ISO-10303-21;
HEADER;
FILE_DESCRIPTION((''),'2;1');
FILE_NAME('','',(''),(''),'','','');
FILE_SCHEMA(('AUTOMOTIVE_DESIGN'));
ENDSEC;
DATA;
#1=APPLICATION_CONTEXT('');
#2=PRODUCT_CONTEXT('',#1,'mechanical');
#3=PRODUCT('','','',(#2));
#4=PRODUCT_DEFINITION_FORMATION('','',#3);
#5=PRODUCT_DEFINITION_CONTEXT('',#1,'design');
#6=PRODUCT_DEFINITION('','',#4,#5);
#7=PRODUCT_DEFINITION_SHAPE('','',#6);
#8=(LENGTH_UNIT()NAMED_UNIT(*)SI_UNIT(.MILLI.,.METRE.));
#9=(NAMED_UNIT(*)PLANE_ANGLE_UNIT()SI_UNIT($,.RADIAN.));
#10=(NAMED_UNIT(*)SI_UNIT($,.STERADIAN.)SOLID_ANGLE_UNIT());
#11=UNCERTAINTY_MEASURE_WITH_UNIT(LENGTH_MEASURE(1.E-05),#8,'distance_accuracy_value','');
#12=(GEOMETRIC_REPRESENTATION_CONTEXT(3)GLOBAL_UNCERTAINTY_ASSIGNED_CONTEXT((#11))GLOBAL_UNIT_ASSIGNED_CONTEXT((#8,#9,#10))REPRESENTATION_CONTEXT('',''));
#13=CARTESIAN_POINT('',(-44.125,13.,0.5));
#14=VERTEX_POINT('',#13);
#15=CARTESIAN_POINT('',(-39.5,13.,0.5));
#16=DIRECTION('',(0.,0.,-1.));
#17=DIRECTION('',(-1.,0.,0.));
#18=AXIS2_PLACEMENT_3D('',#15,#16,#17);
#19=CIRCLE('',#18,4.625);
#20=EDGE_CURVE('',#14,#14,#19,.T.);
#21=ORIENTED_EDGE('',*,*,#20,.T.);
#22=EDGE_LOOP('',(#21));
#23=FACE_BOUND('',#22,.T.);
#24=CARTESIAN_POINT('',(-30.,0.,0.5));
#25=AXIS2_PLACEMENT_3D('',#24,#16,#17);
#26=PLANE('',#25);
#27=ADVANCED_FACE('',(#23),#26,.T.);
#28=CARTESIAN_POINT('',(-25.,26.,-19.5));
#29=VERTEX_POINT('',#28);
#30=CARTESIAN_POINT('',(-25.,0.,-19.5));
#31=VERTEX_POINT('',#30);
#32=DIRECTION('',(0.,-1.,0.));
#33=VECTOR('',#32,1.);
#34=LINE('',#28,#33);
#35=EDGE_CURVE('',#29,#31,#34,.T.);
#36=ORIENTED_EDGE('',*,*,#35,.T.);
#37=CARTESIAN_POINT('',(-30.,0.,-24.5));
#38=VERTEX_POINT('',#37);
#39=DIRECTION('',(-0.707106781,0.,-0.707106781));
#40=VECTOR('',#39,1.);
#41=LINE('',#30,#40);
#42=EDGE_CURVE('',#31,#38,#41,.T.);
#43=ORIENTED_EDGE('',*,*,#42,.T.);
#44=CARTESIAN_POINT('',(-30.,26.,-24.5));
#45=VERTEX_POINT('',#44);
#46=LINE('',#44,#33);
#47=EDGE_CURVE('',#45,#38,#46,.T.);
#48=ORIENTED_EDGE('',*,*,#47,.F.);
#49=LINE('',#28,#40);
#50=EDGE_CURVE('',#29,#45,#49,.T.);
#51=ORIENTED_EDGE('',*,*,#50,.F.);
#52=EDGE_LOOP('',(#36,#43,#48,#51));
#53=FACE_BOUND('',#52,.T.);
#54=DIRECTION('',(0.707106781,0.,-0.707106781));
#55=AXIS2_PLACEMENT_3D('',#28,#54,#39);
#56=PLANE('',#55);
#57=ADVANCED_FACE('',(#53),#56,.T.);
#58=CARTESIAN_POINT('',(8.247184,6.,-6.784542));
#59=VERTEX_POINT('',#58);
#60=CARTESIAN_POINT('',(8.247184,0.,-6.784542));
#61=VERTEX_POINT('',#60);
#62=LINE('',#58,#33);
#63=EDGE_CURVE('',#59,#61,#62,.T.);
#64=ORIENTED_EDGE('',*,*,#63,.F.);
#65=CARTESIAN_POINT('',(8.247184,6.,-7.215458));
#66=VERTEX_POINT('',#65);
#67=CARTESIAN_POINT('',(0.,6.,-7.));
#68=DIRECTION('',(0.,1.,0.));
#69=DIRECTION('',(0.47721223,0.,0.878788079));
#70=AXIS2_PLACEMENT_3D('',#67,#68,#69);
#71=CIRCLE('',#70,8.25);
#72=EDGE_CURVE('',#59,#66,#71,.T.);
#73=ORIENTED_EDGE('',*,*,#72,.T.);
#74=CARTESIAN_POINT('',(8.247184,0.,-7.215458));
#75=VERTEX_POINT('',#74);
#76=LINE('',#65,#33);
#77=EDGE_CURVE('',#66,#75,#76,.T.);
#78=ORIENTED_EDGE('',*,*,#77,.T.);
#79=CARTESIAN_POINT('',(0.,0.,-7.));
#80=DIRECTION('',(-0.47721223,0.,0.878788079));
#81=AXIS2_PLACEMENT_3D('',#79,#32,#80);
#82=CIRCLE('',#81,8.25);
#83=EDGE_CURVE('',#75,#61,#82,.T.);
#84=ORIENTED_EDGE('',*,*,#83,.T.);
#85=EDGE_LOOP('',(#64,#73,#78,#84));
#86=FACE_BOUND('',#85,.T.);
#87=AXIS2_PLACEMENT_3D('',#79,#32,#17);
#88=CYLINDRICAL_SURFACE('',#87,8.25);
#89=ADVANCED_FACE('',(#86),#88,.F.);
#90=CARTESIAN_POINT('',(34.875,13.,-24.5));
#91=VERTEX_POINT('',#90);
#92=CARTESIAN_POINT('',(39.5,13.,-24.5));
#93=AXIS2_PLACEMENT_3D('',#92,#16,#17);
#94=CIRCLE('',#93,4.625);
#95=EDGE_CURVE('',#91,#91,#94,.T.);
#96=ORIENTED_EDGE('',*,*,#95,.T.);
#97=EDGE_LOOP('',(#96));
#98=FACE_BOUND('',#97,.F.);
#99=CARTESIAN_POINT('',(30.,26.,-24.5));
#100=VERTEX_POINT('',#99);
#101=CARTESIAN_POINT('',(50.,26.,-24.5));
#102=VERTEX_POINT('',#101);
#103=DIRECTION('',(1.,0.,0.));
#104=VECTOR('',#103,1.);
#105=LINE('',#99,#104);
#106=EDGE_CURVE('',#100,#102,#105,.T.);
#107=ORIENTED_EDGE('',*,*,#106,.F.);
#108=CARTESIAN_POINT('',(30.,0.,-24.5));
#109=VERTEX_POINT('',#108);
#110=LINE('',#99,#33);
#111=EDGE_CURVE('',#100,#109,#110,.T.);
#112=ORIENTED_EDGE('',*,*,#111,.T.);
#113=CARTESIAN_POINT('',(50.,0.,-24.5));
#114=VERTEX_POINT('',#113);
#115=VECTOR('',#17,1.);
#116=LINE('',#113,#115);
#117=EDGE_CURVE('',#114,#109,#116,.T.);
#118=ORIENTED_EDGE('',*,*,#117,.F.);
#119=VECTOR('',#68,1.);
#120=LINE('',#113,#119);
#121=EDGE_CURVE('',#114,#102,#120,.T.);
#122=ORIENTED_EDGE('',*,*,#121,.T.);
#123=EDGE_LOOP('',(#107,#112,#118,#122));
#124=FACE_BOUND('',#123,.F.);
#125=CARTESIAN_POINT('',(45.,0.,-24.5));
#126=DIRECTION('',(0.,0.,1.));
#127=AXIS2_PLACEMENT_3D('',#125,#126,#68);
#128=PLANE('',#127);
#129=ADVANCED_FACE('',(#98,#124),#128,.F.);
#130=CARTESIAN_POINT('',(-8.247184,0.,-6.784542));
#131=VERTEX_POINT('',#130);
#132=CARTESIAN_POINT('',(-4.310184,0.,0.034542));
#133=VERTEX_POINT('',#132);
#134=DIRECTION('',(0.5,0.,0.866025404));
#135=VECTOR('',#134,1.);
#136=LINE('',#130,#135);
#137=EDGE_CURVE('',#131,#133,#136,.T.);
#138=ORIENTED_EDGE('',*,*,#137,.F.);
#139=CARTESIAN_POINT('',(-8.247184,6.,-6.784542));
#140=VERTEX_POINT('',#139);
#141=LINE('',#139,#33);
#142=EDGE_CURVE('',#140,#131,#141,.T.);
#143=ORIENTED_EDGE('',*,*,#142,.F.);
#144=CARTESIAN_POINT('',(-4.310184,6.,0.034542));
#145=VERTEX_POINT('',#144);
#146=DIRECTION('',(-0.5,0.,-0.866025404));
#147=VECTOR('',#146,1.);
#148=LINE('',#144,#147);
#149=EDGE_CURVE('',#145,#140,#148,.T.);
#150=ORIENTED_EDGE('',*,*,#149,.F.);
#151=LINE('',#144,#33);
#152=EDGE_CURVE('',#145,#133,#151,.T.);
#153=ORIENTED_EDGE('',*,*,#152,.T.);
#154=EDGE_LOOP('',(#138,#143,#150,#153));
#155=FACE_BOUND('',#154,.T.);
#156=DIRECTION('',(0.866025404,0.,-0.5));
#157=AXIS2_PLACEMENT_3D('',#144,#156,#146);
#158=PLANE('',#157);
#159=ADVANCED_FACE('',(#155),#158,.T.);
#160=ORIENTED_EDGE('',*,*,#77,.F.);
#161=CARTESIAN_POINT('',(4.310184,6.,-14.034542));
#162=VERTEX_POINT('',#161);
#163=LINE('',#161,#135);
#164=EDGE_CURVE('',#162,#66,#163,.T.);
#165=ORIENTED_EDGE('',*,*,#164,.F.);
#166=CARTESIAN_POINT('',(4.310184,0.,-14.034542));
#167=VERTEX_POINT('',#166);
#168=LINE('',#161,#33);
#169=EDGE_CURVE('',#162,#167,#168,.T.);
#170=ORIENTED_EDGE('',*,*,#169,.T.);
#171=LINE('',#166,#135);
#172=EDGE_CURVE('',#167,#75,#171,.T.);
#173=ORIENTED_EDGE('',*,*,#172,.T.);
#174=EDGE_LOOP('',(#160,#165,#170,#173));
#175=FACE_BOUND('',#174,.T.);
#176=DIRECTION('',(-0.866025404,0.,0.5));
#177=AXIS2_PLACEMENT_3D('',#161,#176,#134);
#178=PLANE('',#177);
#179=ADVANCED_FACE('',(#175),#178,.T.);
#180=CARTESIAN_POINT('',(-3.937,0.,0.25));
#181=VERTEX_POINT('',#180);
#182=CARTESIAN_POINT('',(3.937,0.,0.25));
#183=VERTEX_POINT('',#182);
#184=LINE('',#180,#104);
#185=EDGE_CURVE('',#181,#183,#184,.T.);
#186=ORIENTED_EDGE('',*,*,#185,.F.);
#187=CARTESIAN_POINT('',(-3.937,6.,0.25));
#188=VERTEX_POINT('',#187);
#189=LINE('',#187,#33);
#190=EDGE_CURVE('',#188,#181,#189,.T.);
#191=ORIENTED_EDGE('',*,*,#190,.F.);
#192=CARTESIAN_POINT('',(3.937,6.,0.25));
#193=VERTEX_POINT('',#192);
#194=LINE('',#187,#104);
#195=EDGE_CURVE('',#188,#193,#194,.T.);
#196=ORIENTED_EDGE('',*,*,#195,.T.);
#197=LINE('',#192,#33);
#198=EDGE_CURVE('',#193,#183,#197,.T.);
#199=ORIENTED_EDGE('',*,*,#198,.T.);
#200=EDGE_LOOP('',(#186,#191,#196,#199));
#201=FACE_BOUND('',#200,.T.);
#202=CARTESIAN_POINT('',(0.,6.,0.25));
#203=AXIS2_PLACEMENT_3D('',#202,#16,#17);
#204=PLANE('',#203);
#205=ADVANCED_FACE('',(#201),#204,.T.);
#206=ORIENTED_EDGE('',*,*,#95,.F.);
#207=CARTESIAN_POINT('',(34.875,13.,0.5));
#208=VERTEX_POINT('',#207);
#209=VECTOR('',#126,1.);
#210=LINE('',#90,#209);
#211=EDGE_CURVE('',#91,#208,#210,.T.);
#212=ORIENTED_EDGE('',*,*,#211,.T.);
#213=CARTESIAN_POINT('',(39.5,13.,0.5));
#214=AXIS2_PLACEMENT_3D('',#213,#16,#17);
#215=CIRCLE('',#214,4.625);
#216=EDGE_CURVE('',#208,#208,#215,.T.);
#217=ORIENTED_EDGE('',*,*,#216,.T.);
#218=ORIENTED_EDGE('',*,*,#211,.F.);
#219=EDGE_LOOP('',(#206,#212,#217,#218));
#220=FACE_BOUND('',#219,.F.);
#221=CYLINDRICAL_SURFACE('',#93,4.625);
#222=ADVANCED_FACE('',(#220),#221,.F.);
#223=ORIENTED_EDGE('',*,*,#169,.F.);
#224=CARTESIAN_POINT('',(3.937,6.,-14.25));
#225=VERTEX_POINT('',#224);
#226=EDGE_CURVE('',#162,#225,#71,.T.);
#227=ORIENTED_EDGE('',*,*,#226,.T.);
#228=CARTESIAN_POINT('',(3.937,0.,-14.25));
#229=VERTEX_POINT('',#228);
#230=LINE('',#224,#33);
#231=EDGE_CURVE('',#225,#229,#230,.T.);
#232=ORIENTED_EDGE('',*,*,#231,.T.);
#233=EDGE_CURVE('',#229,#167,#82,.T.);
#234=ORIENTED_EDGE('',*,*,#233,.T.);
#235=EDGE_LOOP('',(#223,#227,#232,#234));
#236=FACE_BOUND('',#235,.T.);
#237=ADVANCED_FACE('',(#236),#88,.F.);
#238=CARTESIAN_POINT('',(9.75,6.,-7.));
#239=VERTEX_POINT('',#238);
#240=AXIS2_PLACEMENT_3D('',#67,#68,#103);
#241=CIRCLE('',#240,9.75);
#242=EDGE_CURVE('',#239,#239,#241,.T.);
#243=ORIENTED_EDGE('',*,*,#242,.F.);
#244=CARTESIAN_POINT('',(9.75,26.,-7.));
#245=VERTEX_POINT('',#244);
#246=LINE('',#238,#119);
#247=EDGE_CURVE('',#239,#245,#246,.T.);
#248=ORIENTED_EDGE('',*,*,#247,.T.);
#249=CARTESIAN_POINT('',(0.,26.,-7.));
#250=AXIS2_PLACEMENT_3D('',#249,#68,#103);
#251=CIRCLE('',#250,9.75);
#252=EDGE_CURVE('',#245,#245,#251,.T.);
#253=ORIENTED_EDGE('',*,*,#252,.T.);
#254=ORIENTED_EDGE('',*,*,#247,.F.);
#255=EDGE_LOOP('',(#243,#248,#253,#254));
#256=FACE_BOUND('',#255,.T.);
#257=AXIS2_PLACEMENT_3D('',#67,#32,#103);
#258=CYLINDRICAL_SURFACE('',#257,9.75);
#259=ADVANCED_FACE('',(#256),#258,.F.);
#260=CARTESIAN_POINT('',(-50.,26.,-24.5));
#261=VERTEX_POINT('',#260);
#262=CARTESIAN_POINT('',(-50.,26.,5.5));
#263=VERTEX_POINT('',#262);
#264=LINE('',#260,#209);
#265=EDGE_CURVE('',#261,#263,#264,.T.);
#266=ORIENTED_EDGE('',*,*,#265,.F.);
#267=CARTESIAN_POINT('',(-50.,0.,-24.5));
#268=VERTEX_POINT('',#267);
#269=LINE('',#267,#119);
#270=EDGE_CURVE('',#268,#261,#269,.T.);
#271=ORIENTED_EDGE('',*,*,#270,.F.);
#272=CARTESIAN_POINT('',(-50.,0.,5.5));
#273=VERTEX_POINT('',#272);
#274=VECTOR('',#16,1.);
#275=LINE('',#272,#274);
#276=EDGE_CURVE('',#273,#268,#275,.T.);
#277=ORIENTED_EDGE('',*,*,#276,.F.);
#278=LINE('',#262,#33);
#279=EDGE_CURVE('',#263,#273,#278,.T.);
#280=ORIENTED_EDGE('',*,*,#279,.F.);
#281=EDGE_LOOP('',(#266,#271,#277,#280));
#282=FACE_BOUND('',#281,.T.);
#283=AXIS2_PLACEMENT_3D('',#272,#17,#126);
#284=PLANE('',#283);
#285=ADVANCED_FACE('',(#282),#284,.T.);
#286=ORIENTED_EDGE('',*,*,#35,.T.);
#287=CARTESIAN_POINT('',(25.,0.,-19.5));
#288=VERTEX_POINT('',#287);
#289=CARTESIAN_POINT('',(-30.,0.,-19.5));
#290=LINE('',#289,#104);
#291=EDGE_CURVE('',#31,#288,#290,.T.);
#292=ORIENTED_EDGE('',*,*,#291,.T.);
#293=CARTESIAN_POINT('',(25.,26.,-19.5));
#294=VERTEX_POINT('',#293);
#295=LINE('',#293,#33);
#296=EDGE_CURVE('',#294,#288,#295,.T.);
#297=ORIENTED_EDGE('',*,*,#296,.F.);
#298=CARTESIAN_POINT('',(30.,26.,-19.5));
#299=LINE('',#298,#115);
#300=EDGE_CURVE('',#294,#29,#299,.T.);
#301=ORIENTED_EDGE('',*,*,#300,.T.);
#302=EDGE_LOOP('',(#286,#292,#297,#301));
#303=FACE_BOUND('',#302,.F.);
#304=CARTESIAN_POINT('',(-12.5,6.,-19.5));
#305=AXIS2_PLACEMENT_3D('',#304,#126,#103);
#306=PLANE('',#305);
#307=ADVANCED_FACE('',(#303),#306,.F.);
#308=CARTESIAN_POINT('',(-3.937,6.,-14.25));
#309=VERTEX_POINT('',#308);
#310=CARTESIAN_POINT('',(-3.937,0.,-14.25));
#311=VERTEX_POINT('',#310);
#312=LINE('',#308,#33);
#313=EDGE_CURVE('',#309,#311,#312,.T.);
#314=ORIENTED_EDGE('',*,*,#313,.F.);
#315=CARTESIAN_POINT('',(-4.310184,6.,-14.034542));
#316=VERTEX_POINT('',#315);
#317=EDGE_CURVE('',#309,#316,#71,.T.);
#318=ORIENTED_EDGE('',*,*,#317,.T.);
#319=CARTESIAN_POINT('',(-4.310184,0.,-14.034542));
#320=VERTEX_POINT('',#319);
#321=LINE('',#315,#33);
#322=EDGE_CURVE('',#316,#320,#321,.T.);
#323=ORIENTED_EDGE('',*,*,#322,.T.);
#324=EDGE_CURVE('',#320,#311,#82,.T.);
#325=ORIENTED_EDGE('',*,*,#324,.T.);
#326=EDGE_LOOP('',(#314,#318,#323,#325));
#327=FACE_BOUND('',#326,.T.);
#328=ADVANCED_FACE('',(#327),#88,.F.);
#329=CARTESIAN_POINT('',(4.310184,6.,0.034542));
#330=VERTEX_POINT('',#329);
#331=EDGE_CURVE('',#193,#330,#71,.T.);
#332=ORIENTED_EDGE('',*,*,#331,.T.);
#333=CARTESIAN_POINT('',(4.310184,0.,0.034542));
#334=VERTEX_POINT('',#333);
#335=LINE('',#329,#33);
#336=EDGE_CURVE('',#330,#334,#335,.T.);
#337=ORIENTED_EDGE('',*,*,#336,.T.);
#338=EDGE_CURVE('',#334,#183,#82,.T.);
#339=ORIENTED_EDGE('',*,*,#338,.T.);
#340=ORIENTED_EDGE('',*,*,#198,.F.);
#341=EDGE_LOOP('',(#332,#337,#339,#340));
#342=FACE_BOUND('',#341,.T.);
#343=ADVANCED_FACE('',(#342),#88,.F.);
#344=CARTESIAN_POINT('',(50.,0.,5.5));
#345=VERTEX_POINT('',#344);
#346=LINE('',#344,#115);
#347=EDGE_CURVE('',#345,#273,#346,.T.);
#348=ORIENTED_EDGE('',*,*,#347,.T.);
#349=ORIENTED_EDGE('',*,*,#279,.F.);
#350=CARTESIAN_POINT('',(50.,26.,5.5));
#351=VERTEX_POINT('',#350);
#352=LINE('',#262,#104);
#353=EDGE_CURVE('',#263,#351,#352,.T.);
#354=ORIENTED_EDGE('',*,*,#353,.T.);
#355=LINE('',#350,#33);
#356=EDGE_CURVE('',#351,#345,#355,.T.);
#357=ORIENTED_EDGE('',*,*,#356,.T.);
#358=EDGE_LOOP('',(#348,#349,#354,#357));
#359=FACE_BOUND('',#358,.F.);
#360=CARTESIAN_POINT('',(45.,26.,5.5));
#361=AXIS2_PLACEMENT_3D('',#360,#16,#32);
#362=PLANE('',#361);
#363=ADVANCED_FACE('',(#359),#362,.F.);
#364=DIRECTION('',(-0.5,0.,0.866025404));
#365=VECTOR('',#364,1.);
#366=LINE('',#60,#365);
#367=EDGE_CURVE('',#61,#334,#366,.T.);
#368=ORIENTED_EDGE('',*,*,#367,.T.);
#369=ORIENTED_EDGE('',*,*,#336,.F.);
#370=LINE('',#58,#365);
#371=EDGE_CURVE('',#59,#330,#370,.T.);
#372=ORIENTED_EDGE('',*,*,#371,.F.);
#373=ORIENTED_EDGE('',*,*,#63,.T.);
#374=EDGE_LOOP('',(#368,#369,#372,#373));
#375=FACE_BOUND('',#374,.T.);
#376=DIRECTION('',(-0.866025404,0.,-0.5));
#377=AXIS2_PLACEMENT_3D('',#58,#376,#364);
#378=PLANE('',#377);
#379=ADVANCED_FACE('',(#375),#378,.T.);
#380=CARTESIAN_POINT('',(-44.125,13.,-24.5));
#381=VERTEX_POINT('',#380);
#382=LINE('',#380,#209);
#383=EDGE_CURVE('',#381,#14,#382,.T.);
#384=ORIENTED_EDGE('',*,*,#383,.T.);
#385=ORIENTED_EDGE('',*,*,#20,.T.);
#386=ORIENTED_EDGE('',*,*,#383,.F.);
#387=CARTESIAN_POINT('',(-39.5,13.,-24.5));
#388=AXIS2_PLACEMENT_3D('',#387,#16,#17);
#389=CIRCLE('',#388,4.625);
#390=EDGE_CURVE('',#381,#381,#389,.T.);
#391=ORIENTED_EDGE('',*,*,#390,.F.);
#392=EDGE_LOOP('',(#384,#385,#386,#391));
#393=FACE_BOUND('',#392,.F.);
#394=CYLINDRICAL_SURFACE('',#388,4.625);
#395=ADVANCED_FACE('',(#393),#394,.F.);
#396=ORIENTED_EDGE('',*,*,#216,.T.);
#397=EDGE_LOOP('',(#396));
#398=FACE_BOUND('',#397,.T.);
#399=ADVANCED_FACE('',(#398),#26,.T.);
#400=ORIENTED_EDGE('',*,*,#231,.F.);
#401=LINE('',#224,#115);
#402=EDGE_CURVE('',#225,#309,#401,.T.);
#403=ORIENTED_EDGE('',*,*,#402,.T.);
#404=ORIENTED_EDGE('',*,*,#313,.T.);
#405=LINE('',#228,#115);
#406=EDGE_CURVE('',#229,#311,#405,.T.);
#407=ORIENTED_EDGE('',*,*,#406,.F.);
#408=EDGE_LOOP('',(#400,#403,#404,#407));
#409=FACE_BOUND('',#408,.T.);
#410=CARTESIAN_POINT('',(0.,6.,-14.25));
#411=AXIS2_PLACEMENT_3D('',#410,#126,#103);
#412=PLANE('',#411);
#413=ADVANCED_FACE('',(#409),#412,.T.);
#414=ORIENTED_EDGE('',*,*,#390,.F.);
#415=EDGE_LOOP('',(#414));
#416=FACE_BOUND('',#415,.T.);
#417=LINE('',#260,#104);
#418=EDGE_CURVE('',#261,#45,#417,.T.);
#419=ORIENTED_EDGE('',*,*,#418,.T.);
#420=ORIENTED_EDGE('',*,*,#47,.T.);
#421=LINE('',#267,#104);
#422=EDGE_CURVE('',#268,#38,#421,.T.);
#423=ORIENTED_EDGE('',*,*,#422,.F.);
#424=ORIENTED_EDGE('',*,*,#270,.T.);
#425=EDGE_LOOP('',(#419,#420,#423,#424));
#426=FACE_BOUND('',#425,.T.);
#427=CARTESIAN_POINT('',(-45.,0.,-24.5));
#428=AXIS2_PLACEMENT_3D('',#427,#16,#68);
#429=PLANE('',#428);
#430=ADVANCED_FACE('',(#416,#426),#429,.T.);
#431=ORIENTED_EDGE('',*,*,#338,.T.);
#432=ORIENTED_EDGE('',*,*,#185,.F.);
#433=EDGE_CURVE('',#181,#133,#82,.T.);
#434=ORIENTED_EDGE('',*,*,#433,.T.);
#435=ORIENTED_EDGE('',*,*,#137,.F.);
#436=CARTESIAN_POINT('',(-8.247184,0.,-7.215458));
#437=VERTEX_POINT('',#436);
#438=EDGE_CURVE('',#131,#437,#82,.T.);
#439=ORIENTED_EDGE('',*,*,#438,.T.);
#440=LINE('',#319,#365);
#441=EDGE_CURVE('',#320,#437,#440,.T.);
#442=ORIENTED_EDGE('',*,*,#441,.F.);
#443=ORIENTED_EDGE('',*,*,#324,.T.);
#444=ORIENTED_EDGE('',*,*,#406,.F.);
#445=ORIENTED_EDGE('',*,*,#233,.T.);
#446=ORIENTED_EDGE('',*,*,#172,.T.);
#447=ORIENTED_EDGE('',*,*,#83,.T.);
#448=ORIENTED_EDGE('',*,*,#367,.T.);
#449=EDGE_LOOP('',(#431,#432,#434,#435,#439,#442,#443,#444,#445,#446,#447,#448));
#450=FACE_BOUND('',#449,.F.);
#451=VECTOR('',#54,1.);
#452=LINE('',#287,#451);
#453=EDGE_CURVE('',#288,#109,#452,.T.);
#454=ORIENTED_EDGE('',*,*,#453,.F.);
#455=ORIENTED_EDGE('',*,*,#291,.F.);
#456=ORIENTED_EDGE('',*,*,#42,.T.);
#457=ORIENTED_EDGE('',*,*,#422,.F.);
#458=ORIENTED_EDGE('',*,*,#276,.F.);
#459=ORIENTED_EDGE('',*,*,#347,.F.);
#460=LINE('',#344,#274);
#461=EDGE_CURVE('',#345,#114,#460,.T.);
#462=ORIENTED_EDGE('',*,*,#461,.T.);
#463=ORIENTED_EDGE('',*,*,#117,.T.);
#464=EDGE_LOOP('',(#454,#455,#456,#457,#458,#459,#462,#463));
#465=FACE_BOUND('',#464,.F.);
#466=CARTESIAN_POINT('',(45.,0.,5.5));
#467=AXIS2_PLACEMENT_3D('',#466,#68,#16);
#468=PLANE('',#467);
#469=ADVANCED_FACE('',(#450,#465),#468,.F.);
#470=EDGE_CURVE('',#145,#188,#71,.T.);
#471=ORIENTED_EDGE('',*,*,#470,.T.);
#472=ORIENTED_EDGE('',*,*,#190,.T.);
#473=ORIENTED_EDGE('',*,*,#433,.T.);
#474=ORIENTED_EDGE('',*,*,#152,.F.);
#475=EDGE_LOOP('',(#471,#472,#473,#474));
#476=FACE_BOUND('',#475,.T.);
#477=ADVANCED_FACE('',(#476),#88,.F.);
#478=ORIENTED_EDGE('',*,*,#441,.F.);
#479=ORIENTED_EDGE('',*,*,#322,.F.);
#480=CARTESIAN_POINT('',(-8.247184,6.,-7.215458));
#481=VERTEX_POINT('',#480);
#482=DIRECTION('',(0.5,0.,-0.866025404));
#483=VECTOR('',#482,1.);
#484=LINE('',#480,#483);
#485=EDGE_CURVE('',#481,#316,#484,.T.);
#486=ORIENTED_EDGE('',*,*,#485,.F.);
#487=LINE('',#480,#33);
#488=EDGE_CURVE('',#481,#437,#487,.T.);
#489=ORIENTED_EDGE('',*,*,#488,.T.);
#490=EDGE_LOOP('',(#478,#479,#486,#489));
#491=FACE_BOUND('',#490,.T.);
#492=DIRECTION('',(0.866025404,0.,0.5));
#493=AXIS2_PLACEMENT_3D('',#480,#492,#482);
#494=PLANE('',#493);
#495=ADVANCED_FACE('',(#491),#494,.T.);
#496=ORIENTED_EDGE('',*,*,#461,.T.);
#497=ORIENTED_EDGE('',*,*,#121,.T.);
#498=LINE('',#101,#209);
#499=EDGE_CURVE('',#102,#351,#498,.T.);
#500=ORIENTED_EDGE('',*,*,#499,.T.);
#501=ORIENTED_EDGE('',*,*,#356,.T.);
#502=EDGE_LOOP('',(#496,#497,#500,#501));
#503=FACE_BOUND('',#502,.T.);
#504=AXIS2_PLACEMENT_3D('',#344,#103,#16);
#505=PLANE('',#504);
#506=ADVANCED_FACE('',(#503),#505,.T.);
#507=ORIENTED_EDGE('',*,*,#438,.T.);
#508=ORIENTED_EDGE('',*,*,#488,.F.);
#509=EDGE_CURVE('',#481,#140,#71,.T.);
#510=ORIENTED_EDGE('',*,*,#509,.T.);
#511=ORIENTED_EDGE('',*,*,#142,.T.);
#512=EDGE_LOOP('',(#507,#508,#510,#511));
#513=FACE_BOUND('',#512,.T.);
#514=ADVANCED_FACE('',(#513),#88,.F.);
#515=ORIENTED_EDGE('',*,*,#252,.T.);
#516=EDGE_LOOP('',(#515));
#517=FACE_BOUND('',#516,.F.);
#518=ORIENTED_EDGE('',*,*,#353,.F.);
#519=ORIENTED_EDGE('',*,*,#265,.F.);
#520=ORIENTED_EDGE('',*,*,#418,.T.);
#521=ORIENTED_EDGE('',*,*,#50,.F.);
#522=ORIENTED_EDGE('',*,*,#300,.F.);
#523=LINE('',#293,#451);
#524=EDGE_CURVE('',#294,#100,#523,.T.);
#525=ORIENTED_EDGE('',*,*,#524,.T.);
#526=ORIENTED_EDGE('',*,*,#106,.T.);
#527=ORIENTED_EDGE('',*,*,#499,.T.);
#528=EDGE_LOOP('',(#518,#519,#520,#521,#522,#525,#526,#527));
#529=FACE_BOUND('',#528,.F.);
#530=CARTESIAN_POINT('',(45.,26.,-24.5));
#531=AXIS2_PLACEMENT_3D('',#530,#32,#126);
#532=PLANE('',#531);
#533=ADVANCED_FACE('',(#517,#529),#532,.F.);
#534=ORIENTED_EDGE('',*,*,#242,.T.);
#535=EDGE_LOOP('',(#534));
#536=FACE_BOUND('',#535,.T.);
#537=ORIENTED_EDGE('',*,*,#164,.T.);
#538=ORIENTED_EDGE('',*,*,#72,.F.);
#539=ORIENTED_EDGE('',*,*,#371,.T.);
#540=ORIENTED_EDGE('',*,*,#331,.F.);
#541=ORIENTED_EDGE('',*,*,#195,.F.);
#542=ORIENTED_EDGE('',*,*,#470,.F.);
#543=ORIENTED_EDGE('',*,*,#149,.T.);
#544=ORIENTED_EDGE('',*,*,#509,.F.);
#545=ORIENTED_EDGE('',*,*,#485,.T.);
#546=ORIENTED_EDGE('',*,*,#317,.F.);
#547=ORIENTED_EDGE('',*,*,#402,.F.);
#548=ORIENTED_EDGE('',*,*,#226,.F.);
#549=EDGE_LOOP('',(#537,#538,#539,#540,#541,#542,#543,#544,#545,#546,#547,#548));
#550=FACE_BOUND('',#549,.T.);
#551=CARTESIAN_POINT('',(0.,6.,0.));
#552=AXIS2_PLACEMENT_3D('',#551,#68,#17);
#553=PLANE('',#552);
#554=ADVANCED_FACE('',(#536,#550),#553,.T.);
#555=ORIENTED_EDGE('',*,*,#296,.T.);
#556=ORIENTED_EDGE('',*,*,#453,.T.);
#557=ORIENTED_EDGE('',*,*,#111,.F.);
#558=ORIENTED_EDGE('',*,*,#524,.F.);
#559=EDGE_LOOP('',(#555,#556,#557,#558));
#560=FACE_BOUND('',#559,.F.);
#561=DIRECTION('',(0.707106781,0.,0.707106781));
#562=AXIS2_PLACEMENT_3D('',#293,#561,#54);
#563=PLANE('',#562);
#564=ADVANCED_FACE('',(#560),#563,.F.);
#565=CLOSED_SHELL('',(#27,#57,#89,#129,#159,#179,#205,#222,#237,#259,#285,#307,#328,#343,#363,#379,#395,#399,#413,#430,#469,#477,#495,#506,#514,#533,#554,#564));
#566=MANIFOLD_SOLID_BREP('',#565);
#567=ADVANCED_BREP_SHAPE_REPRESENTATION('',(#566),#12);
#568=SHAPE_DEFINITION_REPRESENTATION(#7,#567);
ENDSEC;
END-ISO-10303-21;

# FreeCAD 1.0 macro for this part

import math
import FreeCAD as App
import Part
import Sketcher
from FreeCAD import Vector
Q = App.Units.Quantity

doc = App.newDocument("Part")
params = doc.addObject("Spreadsheet::Sheet", "Params")
for row, (alias, value) in enumerate([
    ("sketch1_diameter", "21 mm"),
    ("sketch1_diameter2", "16.5 mm"),
    ("pad1_length", "6 mm"),
    ("sketch2_radius", "10.5 mm"),
    ("pad2_length", "6 mm"),
    ("sketch3_radius", "8.25 mm"),
    ("pad3_length", "6 mm"),
    ("sketch4_diameter", "19.5 mm"),
    ("sketch4_width", "25 mm"),
    ("pad4_length", "20 mm"),
    ("sketch5_width", "25 mm"),
    ("sketch5_width2", "21 mm"),
    ("pad5_length", "6 mm"),
    ("sketch6_width", "17.5 mm"),
    ("sketch6_height", "26 mm"),
    ("pad6_length", "25 mm"),
    ("sketch7_width", "15 mm"),
    ("sketch7_height", "26 mm"),
    ("pad7_length", "61.25 mm"),
    ("sketch8_diameter", "8.25 mm"),
    ("sketch9_width", "5 mm"),
    ("pad8_length", "26 mm"),
    ("sketch10_width", "90 mm"),
    ("sketch10_height", "31.25 mm"),
    ("sketch11_width", "26 mm"),
    ("sketch11_height", "30 mm"),
    ("pad9_length", "5 mm"),
    ("sketch12_width", "26 mm"),
    ("sketch12_height", "30 mm"),
    ("pad10_length", "5 mm"),
    ("sketch13_diameter", "9.25 mm"),
    ("pocket3_length", "25 mm"),
], start=1):
    params.set(f"A{row}", alias)
    params.set(f"B{row}", "=" + value)
    params.setAlias(f"B{row}", alias)

body = doc.addObject("PartDesign::Body", "Body")

# Sketch on XZ plane
sketch1 = doc.addObject("Sketcher::SketchObject", "Sketch")
body.addObject(sketch1)
sketch1.AttachmentSupport = (doc.XZ_Plane, [""])
sketch1.MapMode = "FlatFace"
sketch1.addGeometry([
    Part.Circle(Vector(0, -7, 0), Vector(0, 0, 1), 10),
    Part.Circle(Vector(0, -7, 0), Vector(0, 0, 1), 8),
], False)
sketch1.addConstraint([
    Sketcher.Constraint("Coincident", 1, 3, 0, 3),
    Sketcher.Constraint("PointOnObject", 0, 3, -2),
    Sketcher.Constraint("Diameter", 0, Q("21 mm")),
    Sketcher.Constraint("Diameter", 1, Q("16.5 mm")),
    Sketcher.Constraint("DistanceY", 0, 3, -1, 1, Q("7 mm")),
])
sketch1.setExpression("Constraints[2]", "Params.sketch1_diameter")
sketch1.setExpression("Constraints[3]", "Params.sketch1_diameter2")
pad1 = doc.addObject("PartDesign::Pad", "Pad")
body.addObject(pad1)
pad1.Profile = sketch1
pad1.setExpression("Length", "Params.pad1_length")
pad1.Reversed = True

# Sketch on XZ plane
sketch2 = doc.addObject("Sketcher::SketchObject", "Sketch001")
body.addObject(sketch2)
sketch2.AttachmentSupport = (doc.XZ_Plane, [""])
sketch2.MapMode = "FlatFace"
sketch2.AttachmentOffset = App.Placement(Vector(0, 0, -6), App.Rotation())
sketch2.addGeometry([
    Part.LineSegment(Vector(0, 4, 0), Vector(10, 4, 0)),  # 0
    Part.LineSegment(Vector(10, 4, 0), Vector(10, -7, 0)),  # 1
    Part.ArcOfCircle(Part.Circle(Vector(0, -7, 0), Vector(0, 0, 1), 10), math.radians(0), math.radians(90)),  # 2
    Part.LineSegment(Vector(-10, 4, 0), Vector(0, 4, 0)),  # 3
    Part.ArcOfCircle(Part.Circle(Vector(0, -7, 0), Vector(0, 0, 1), 10), math.radians(90), math.radians(180)),  # 4
    Part.LineSegment(Vector(-10, -7, 0), Vector(-10, 4, 0)),  # 5
    Part.ArcOfCircle(Part.Circle(Vector(0, -7, 0), Vector(0, 0, 1), 10), math.radians(-90), math.radians(0)),  # 6
    Part.LineSegment(Vector(10, -7, 0), Vector(10, -18, 0)),  # 7
    Part.LineSegment(Vector(10, -18, 0), Vector(0, -18, 0)),  # 8
    Part.LineSegment(Vector(-10, -18, 0), Vector(-10, -7, 0)),  # 9
    Part.ArcOfCircle(Part.Circle(Vector(0, -7, 0), Vector(0, 0, 1), 10), math.radians(-180), math.radians(-90)),  # 10
    Part.LineSegment(Vector(0, -18, 0), Vector(-10, -18, 0)),  # 11
], False)
sketch2.addConstraint([
    Sketcher.Constraint("Coincident", 0, 2, 1, 1),
    Sketcher.Constraint("Tangent", 1, 2, 2, 1),
    Sketcher.Constraint("Tangent", 2, 2, 0, 1),
    Sketcher.Constraint("Tangent", 3, 2, 4, 1),
    Sketcher.Constraint("Tangent", 4, 2, 5, 1),
    Sketcher.Constraint("Coincident", 5, 2, 3, 1),
    Sketcher.Constraint("Tangent", 6, 2, 7, 1),
    Sketcher.Constraint("Coincident", 7, 2, 8, 1),
    Sketcher.Constraint("Tangent", 8, 2, 6, 1),
    Sketcher.Constraint("Tangent", 9, 2, 10, 1),
    Sketcher.Constraint("Tangent", 10, 2, 11, 1),
    Sketcher.Constraint("Coincident", 11, 2, 9, 1),
    Sketcher.Constraint("Horizontal", 0),
    Sketcher.Constraint("Vertical", 1),
    Sketcher.Constraint("Horizontal", 3),
    Sketcher.Constraint("Vertical", 5),
    Sketcher.Constraint("Vertical", 7),
    Sketcher.Constraint("Horizontal", 8),
    Sketcher.Constraint("Vertical", 9),
    Sketcher.Constraint("Horizontal", 11),
    Sketcher.Constraint("Coincident", 4, 3, 2, 3),
    Sketcher.Constraint("Coincident", 6, 3, 2, 3),
    Sketcher.Constraint("Coincident", 10, 3, 2, 3),
    Sketcher.Constraint("Equal", 2, 4),
    Sketcher.Constraint("Equal", 4, 6),
    Sketcher.Constraint("Equal", 6, 10),
    Sketcher.Constraint("PointOnObject", 2, 3, -2),
    Sketcher.Constraint("Radius", 2, Q("10.5 mm")),
    Sketcher.Constraint("DistanceY", 2, 3, -1, 1, Q("7 mm")),
])
sketch2.setExpression("Constraints[27]", "Params.sketch2_radius")
pad2 = doc.addObject("PartDesign::Pad", "Pad001")
body.addObject(pad2)
pad2.Profile = sketch2
pad2.setExpression("Length", "Params.pad2_length")

# Sketch on XZ plane
sketch3 = doc.addObject("Sketcher::SketchObject", "Sketch002")
body.addObject(sketch3)
sketch3.AttachmentSupport = (doc.XZ_Plane, [""])
sketch3.MapMode = "FlatFace"
sketch3.AttachmentOffset = App.Placement(Vector(0, 0, -6), App.Rotation())
sketch3.addGeometry([
    Part.LineSegment(Vector(4, 0, 0), Vector(-4, 0, 0)),
    Part.ArcOfCircle(Part.Circle(Vector(0, -7, 0), Vector(0, 0, 1), 8), math.radians(61), math.radians(119)),
], False)
sketch3.addConstraint([
    Sketcher.Constraint("Coincident", 0, 1, 1, 1),
    Sketcher.Constraint("Coincident", 1, 2, 0, 2),
    Sketcher.Constraint("Horizontal", 0),
    Sketcher.Constraint("PointOnObject", 1, 3, -2),
    Sketcher.Constraint("Radius", 1, Q("8.25 mm")),
    Sketcher.Constraint("DistanceY", 1, 3, 0, 1, Q("7.25 mm")),
    Sketcher.Constraint("DistanceY", 1, 3, -1, 1, Q("7 mm")),
])
sketch3.setExpression("Constraints[4]", "Params.sketch3_radius")
pad3 = doc.addObject("PartDesign::Pad", "Pad002")
body.addObject(pad3)
pad3.Profile = sketch3
pad3.setExpression("Length", "Params.pad3_length")
doc.recompute()

datumline = doc.addObject("PartDesign::Line", "DatumLine")
body.addObject(datumline)
datumline.Placement = App.Placement(Vector(0, 0, -7), App.Rotation(Vector(0, 0, 1), Vector(0, 1, 0)))
polarpattern = doc.addObject("PartDesign::PolarPattern", "PolarPattern")
body.addObject(polarpattern)
polarpattern.Originals = [pad3]
polarpattern.Axis = (datumline, [""])
polarpattern.Angle = 360
polarpattern.Occurrences = 6
body.Tip = polarpattern

# Sketch on XZ plane
sketch4 = doc.addObject("Sketcher::SketchObject", "Sketch003")
body.addObject(sketch4)
sketch4.AttachmentSupport = (doc.XZ_Plane, [""])
sketch4.MapMode = "FlatFace"
sketch4.AttachmentOffset = App.Placement(Vector(0, 0, -6), App.Rotation())
sketch4.addGeometry([
    Part.LineSegment(Vector(12, 6, 0), Vector(12, -20, 0)),  # 0
    Part.LineSegment(Vector(12, -20, 0), Vector(-12, -20, 0)),  # 1
    Part.LineSegment(Vector(-12, -20, 0), Vector(-12, 6, 0)),  # 2
    Part.LineSegment(Vector(-12, 6, 0), Vector(12, 6, 0)),  # 3
    Part.Circle(Vector(0, -7, 0), Vector(0, 0, 1), 10),  # 4
], False)
sketch4.addConstraint([
    Sketcher.Constraint("Coincident", 0, 2, 1, 1),
    Sketcher.Constraint("Coincident", 1, 2, 2, 1),
    Sketcher.Constraint("Coincident", 2, 2, 3, 1),
    Sketcher.Constraint("Coincident", 3, 2, 0, 1),
    Sketcher.Constraint("Vertical", 0),
    Sketcher.Constraint("Horizontal", 1),
    Sketcher.Constraint("Vertical", 2),
    Sketcher.Constraint("Horizontal", 3),
    Sketcher.Constraint("PointOnObject", 4, 3, -2),
    Sketcher.Constraint("Equal", 3, 0),
    Sketcher.Constraint("Diameter", 4, Q("19.5 mm")),
    Sketcher.Constraint("DistanceX", 1, 2, 1, 1, Q("25 mm")),
    Sketcher.Constraint("DistanceY", 0, 2, -1, 1, Q("19.5 mm")),
    Sketcher.Constraint("DistanceY", 4, 3, -1, 1, Q("7 mm")),
    Sketcher.Constraint("DistanceX", -1, 1, 0, 2, Q("12.5 mm")),
])
sketch4.setExpression("Constraints[10]", "Params.sketch4_diameter")
sketch4.setExpression("Constraints[11]", "Params.sketch4_width")
pad4 = doc.addObject("PartDesign::Pad", "Pad003")
body.addObject(pad4)
pad4.Profile = sketch4
pad4.setExpression("Length", "Params.pad4_length")
pad4.Reversed = True

# Sketch on XZ plane
sketch5 = doc.addObject("Sketcher::SketchObject", "Sketch004")
body.addObject(sketch5)
sketch5.AttachmentSupport = (doc.XZ_Plane, [""])
sketch5.MapMode = "FlatFace"
sketch5.AttachmentOffset = App.Placement(Vector(0, 0, -6), App.Rotation())
sketch5.addGeometry([
    Part.LineSegment(Vector(-12, 6, 0), Vector(-12, -20, 0)),  # 0
    Part.LineSegment(Vector(-12, -20, 0), Vector(12, -20, 0)),  # 1
    Part.LineSegment(Vector(12, -20, 0), Vector(12, 6, 0)),  # 2
    Part.LineSegment(Vector(12, 6, 0), Vector(-12, 6, 0)),  # 3
    Part.LineSegment(Vector(10, -18, 0), Vector(-10, -18, 0)),  # 4
    Part.LineSegment(Vector(-10, -18, 0), Vector(-10, 4, 0)),  # 5
    Part.LineSegment(Vector(-10, 4, 0), Vector(10, 4, 0)),  # 6
    Part.LineSegment(Vector(10, 4, 0), Vector(10, -18, 0)),  # 7
], False)
sketch5.addConstraint([
    Sketcher.Constraint("Coincident", 0, 2, 1, 1),
    Sketcher.Constraint("Coincident", 1, 2, 2, 1),
    Sketcher.Constraint("Coincident", 2, 2, 3, 1),
    Sketcher.Constraint("Coincident", 3, 2, 0, 1),
    Sketcher.Constraint("Coincident", 4, 2, 5, 1),
    Sketcher.Constraint("Coincident", 5, 2, 6, 1),
    Sketcher.Constraint("Coincident", 6, 2, 7, 1),
    Sketcher.Constraint("Coincident", 7, 2, 4, 1),
    Sketcher.Constraint("Vertical", 0),
    Sketcher.Constraint("Horizontal", 1),
    Sketcher.Constraint("Vertical", 2),
    Sketcher.Constraint("Horizontal", 3),
    Sketcher.Constraint("Horizontal", 4),
    Sketcher.Constraint("Vertical", 5),
    Sketcher.Constraint("Horizontal", 6),
    Sketcher.Constraint("Vertical", 7),
    Sketcher.Constraint("Equal", 3, 0),
    Sketcher.Constraint("Equal", 6, 5),
    Sketcher.Constraint("DistanceX", 1, 1, 1, 2, Q("25 mm")),
    Sketcher.Constraint("DistanceX", 4, 2, 4, 1, Q("21 mm")),
    Sketcher.Constraint("DistanceX", 0, 2, 4, 2, Q("2 mm")),
    Sketcher.Constraint("DistanceY", 0, 2, 4, 2, Q("2 mm")),
    Sketcher.Constraint("DistanceX", 0, 2, -1, 1, Q("12.5 mm")),
    Sketcher.Constraint("DistanceY", 0, 2, -1, 1, Q("19.5 mm")),
])
sketch5.setExpression("Constraints[18]", "Params.sketch5_width")
sketch5.setExpression("Constraints[19]", "Params.sketch5_width2")
pad5 = doc.addObject("PartDesign::Pad", "Pad004")
body.addObject(pad5)
pad5.Profile = sketch5
pad5.setExpression("Length", "Params.pad5_length")

# Sketch on XY plane
sketch6 = doc.addObject("Sketcher::SketchObject", "Sketch005")
body.addObject(sketch6)
sketch6.AttachmentSupport = (doc.XY_Plane, [""])
sketch6.MapMode = "FlatFace"
sketch6.AttachmentOffset = App.Placement(Vector(0, 0, 5.5), App.Rotation())
sketch6.addGeometry([
    Part.LineSegment(Vector(30, 26, 0), Vector(12, 26, 0)),  # 0
    Part.LineSegment(Vector(12, 26, 0), Vector(12, 0, 0)),  # 1
    Part.LineSegment(Vector(12, 0, 0), Vector(30, 0, 0)),  # 2
    Part.LineSegment(Vector(30, 0, 0), Vector(30, 26, 0)),  # 3
    Part.LineSegment(Vector(-12, 0, 0), Vector(-12, 26, 0)),  # 4
    Part.LineSegment(Vector(-12, 26, 0), Vector(-30, 26, 0)),  # 5
    Part.LineSegment(Vector(-30, 26, 0), Vector(-30, 0, 0)),  # 6
    Part.LineSegment(Vector(-30, 0, 0), Vector(-12, 0, 0)),  # 7
], False)
sketch6.addConstraint([
    Sketcher.Constraint("Coincident", 0, 2, 1, 1),
    Sketcher.Constraint("Coincident", 1, 2, 2, 1),
    Sketcher.Constraint("Coincident", 2, 2, 3, 1),
    Sketcher.Constraint("Coincident", 3, 2, 0, 1),
    Sketcher.Constraint("Coincident", 4, 2, 5, 1),
    Sketcher.Constraint("Coincident", 5, 2, 6, 1),
    Sketcher.Constraint("Coincident", 6, 2, 7, 1),
    Sketcher.Constraint("Coincident", 7, 2, 4, 1),
    Sketcher.Constraint("Horizontal", 0),
    Sketcher.Constraint("Vertical", 1),
    Sketcher.Constraint("Horizontal", 2),
    Sketcher.Constraint("Vertical", 3),
    Sketcher.Constraint("Vertical", 4),
    Sketcher.Constraint("Horizontal", 5),
    Sketcher.Constraint("Vertical", 6),
    Sketcher.Constraint("Horizontal", 7),
    Sketcher.Constraint("Symmetric", 2, 2, 6, 2, -1, 1),
    Sketcher.Constraint("Symmetric", 0, 2, 4, 2, -2),
    Sketcher.Constraint("PointOnObject", 1, 2, -1),
    Sketcher.Constraint("DistanceX", 0, 2, 0, 1, Q("17.5 mm")),
    Sketcher.Constraint("DistanceY", 1, 2, 1, 1, Q("26 mm")),
    Sketcher.Constraint("DistanceX", -1, 1, 2, 2, Q("30 mm")),
])
sketch6.setExpression("Constraints[19]", "Params.sketch6_width")
sketch6.setExpression("Constraints[20]", "Params.sketch6_height")
pad6 = doc.addObject("PartDesign::Pad", "Pad005")
body.addObject(pad6)
pad6.Profile = sketch6
pad6.setExpression("Length", "Params.pad6_length")
pad6.Reversed = True

# Sketch on XY plane
sketch7 = doc.addObject("Sketcher::SketchObject", "Sketch006")
body.addObject(sketch7)
sketch7.AttachmentSupport = (doc.XY_Plane, [""])
sketch7.MapMode = "FlatFace"
sketch7.AttachmentOffset = App.Placement(Vector(0, 0, 5.5), App.Rotation())
sketch7.addGeometry([
    Part.LineSegment(Vector(-30, 0, 0), Vector(-30, 26, 0)),  # 0
    Part.LineSegment(Vector(-30, 26, 0), Vector(-45, 26, 0)),  # 1
    Part.LineSegment(Vector(-45, 26, 0), Vector(-45, 0, 0)),  # 2
    Part.LineSegment(Vector(-45, 0, 0), Vector(-30, 0, 0)),  # 3
    Part.LineSegment(Vector(45, 26, 0), Vector(30, 26, 0)),  # 4
    Part.LineSegment(Vector(30, 26, 0), Vector(30, 0, 0)),  # 5
    Part.LineSegment(Vector(30, 0, 0), Vector(45, 0, 0)),  # 6
    Part.LineSegment(Vector(45, 0, 0), Vector(45, 26, 0)),  # 7
], False)
sketch7.addConstraint([
    Sketcher.Constraint("Coincident", 0, 2, 1, 1),
    Sketcher.Constraint("Coincident", 1, 2, 2, 1),
    Sketcher.Constraint("Coincident", 2, 2, 3, 1),
    Sketcher.Constraint("Coincident", 3, 2, 0, 1),
    Sketcher.Constraint("Coincident", 4, 2, 5, 1),
    Sketcher.Constraint("Coincident", 5, 2, 6, 1),
    Sketcher.Constraint("Coincident", 6, 2, 7, 1),
    Sketcher.Constraint("Coincident", 7, 2, 4, 1),
    Sketcher.Constraint("Vertical", 0),
    Sketcher.Constraint("Horizontal", 1),
    Sketcher.Constraint("Vertical", 2),
    Sketcher.Constraint("Horizontal", 3),
    Sketcher.Constraint("Horizontal", 4),
    Sketcher.Constraint("Vertical", 5),
    Sketcher.Constraint("Horizontal", 6),
    Sketcher.Constraint("Vertical", 7),
    Sketcher.Constraint("Symmetric", 3, 2, 5, 2, -1, 1),
    Sketcher.Constraint("Symmetric", 2, 2, 6, 2, -2),
    Sketcher.Constraint("Horizontal", 1, 2, 4, 2),
    Sketcher.Constraint("DistanceX", 1, 2, 1, 1, Q("15 mm")),
    Sketcher.Constraint("DistanceY", 0, 1, 0, 2, Q("26 mm")),
    Sketcher.Constraint("DistanceX", 0, 2, -1, 1, Q("30 mm")),
])
sketch7.setExpression("Constraints[19]", "Params.sketch7_width")
sketch7.setExpression("Constraints[20]", "Params.sketch7_height")
pad7 = doc.addObject("PartDesign::Pad", "Pad006")
body.addObject(pad7)
pad7.Profile = sketch7
pad7.setExpression("Length", "Params.pad7_length")
pad7.Reversed = True

# Sketch on YZ plane
sketch8 = doc.addObject("Sketcher::SketchObject", "Sketch007")
body.addObject(sketch8)
sketch8.AttachmentSupport = (doc.YZ_Plane, [""])
sketch8.MapMode = "FlatFace"
sketch8.AttachmentOffset = App.Placement(Vector(0, 0, -45), App.Rotation())
sketch8.addGeometry(Part.Circle(Vector(13, -42.6, 0), Vector(0, 0, 1), 4.1), False)
sketch8.addConstraint([
    Sketcher.Constraint("Diameter", 0, Q("8.25 mm")),
    Sketcher.Constraint("DistanceX", -1, 1, 0, 3, Q("13 mm")),
    Sketcher.Constraint("DistanceY", 0, 3, -1, 1, Q("42.625 mm")),
])
sketch8.setExpression("Constraints[0]", "Params.sketch8_diameter")
pocket1 = doc.addObject("PartDesign::Pocket", "Pocket")
body.addObject(pocket1)
pocket1.Profile = sketch8
pocket1.Type = "ThroughAll"
pocket1.Reversed = True

# Sketch on XZ plane
sketch9 = doc.addObject("Sketcher::SketchObject", "Sketch008")
body.addObject(sketch9)
sketch9.AttachmentSupport = (doc.XZ_Plane, [""])
sketch9.MapMode = "FlatFace"
sketch9.AttachmentOffset = App.Placement(Vector(0, 0, -26), App.Rotation())
sketch9.addGeometry([
    Part.LineSegment(Vector(25, -20, 0), Vector(30, -20, 0)),  # 0
    Part.LineSegment(Vector(30, -20, 0), Vector(30, -24, 0)),  # 1
    Part.LineSegment(Vector(30, -24, 0), Vector(25, -20, 0)),  # 2
    Part.LineSegment(Vector(-30, -20, 0), Vector(-25, -20, 0)),  # 3
    Part.LineSegment(Vector(-25, -20, 0), Vector(-30, -24, 0)),  # 4
    Part.LineSegment(Vector(-30, -24, 0), Vector(-30, -20, 0)),  # 5
], False)
sketch9.addConstraint([
    Sketcher.Constraint("Coincident", 0, 2, 1, 1),
    Sketcher.Constraint("Coincident", 1, 2, 2, 1),
    Sketcher.Constraint("Coincident", 2, 2, 0, 1),
    Sketcher.Constraint("Coincident", 3, 2, 4, 1),
    Sketcher.Constraint("Coincident", 4, 2, 5, 1),
    Sketcher.Constraint("Coincident", 5, 2, 3, 1),
    Sketcher.Constraint("Horizontal", 0),
    Sketcher.Constraint("Vertical", 1),
    Sketcher.Constraint("Horizontal", 3),
    Sketcher.Constraint("Vertical", 5),
    Sketcher.Constraint("Symmetric", 2, 2, 3, 2, -2),
    Sketcher.Constraint("Symmetric", 1, 2, 4, 2, -2),
    Sketcher.Constraint("Perpendicular", 2, 4),
    Sketcher.Constraint("DistanceX", 0, 1, 0, 2, Q("5 mm")),
    Sketcher.Constraint("DistanceX", -1, 1, 0, 2, Q("30 mm")),
    Sketcher.Constraint("DistanceY", 0, 2, -1, 1, Q("19.5 mm")),
])
sketch9.setExpression("Constraints[13]", "Params.sketch9_width")
pad8 = doc.addObject("PartDesign::Pad", "Pad007")
body.addObject(pad8)
pad8.Profile = sketch9
pad8.setExpression("Length", "Params.pad8_length")

# Sketch on XZ plane
sketch10 = doc.addObject("Sketcher::SketchObject", "Sketch009")
body.addObject(sketch10)
sketch10.AttachmentSupport = (doc.XZ_Plane, [""])
sketch10.MapMode = "FlatFace"
sketch10.AttachmentOffset = App.Placement(Vector(0, 0, -26), App.Rotation())
sketch10.addGeometry([
    Part.LineSegment(Vector(-45, -24, 0), Vector(45, -24, 0)),
    Part.LineSegment(Vector(45, -24, 0), Vector(45, -56, 0)),
    Part.LineSegment(Vector(45, -56, 0), Vector(-45, -56, 0)),
    Part.LineSegment(Vector(-45, -56, 0), Vector(-45, -24, 0)),
], False)
sketch10.addConstraint([
    Sketcher.Constraint("Coincident", 0, 2, 1, 1),
    Sketcher.Constraint("Coincident", 1, 2, 2, 1),
    Sketcher.Constraint("Coincident", 2, 2, 3, 1),
    Sketcher.Constraint("Coincident", 3, 2, 0, 1),
    Sketcher.Constraint("Horizontal", 0),
    Sketcher.Constraint("Vertical", 1),
    Sketcher.Constraint("Horizontal", 2),
    Sketcher.Constraint("Vertical", 3),
    Sketcher.Constraint("DistanceX", 0, 1, 0, 2, Q("90 mm")),
    Sketcher.Constraint("DistanceX", -1, 1, 0, 2, Q("45 mm")),
    Sketcher.Constraint("DistanceY", 1, 2, 1, 1, Q("31.25 mm")),
    Sketcher.Constraint("DistanceY", 0, 2, -1, 1, Q("24.5 mm")),
])
sketch10.setExpression("Constraints[8]", "Params.sketch10_width")
sketch10.setExpression("Constraints[10]", "Params.sketch10_height")
pocket2 = doc.addObject("PartDesign::Pocket", "Pocket001")
body.addObject(pocket2)
pocket2.Profile = sketch10
pocket2.Type = "ThroughAll"
pocket2.Reversed = True

# Sketch on YZ plane
sketch11 = doc.addObject("Sketcher::SketchObject", "Sketch010")
body.addObject(sketch11)
sketch11.AttachmentSupport = (doc.YZ_Plane, [""])
sketch11.MapMode = "FlatFace"
sketch11.AttachmentOffset = App.Placement(Vector(0, 0, -45), App.Rotation())
sketch11.addGeometry([
    Part.LineSegment(Vector(0, -24, 0), Vector(0, 6, 0)),
    Part.LineSegment(Vector(0, 6, 0), Vector(26, 6, 0)),
    Part.LineSegment(Vector(26, 6, 0), Vector(26, -24, 0)),
    Part.LineSegment(Vector(26, -24, 0), Vector(0, -24, 0)),
], False)
sketch11.addConstraint([
    Sketcher.Constraint("Coincident", 0, 2, 1, 1),
    Sketcher.Constraint("Coincident", 1, 2, 2, 1),
    Sketcher.Constraint("Coincident", 2, 2, 3, 1),
    Sketcher.Constraint("Coincident", 3, 2, 0, 1),
    Sketcher.Constraint("Vertical", 0),
    Sketcher.Constraint("Horizontal", 1),
    Sketcher.Constraint("Vertical", 2),
    Sketcher.Constraint("Horizontal", 3),
    Sketcher.Constraint("PointOnObject", 0, 2, -2),
    Sketcher.Constraint("DistanceX", 1, 1, 1, 2, Q("26 mm")),
    Sketcher.Constraint("DistanceY", 0, 1, 0, 2, Q("30 mm")),
    Sketcher.Constraint("DistanceY", -1, 1, 0, 2, Q("5.5 mm")),
])
sketch11.setExpression("Constraints[9]", "Params.sketch11_width")
sketch11.setExpression("Constraints[10]", "Params.sketch11_height")
pad9 = doc.addObject("PartDesign::Pad", "Pad008")
body.addObject(pad9)
pad9.Profile = sketch11
pad9.setExpression("Length", "Params.pad9_length")
pad9.Reversed = True

# Sketch on YZ plane
sketch12 = doc.addObject("Sketcher::SketchObject", "Sketch011")
body.addObject(sketch12)
sketch12.AttachmentSupport = (doc.YZ_Plane, [""])
sketch12.MapMode = "FlatFace"
sketch12.AttachmentOffset = App.Placement(Vector(0, 0, 45), App.Rotation())
sketch12.addGeometry([
    Part.LineSegment(Vector(0, -24, 0), Vector(26, -24, 0)),
    Part.LineSegment(Vector(26, -24, 0), Vector(26, 6, 0)),
    Part.LineSegment(Vector(26, 6, 0), Vector(0, 6, 0)),
    Part.LineSegment(Vector(0, 6, 0), Vector(0, -24, 0)),
], False)
sketch12.addConstraint([
    Sketcher.Constraint("Coincident", 0, 2, 1, 1),
    Sketcher.Constraint("Coincident", 1, 2, 2, 1),
    Sketcher.Constraint("Coincident", 2, 2, 3, 1),
    Sketcher.Constraint("Coincident", 3, 2, 0, 1),
    Sketcher.Constraint("Horizontal", 0),
    Sketcher.Constraint("Vertical", 1),
    Sketcher.Constraint("Horizontal", 2),
    Sketcher.Constraint("Vertical", 3),
    Sketcher.Constraint("PointOnObject", 2, 2, -2),
    Sketcher.Constraint("DistanceX", 0, 1, 0, 2, Q("26 mm")),
    Sketcher.Constraint("DistanceY", 1, 1, 1, 2, Q("30 mm")),
    Sketcher.Constraint("DistanceY", 0, 2, -1, 1, Q("24.5 mm")),
])
sketch12.setExpression("Constraints[9]", "Params.sketch12_width")
sketch12.setExpression("Constraints[10]", "Params.sketch12_height")
pad10 = doc.addObject("PartDesign::Pad", "Pad009")
body.addObject(pad10)
pad10.Profile = sketch12
pad10.setExpression("Length", "Params.pad10_length")

# Sketch on XY plane
sketch13 = doc.addObject("Sketcher::SketchObject", "Sketch012")
body.addObject(sketch13)
sketch13.AttachmentSupport = (doc.XY_Plane, [""])
sketch13.MapMode = "FlatFace"
sketch13.AttachmentOffset = App.Placement(Vector(0, 0, -24.5), App.Rotation())
sketch13.addGeometry([
    Part.Circle(Vector(-39.5, 13, 0), Vector(0, 0, 1), 4.6),
    Part.Circle(Vector(39.5, 13, 0), Vector(0, 0, 1), 4.6),
], False)
sketch13.addConstraint([
    Sketcher.Constraint("Equal", 0, 1),
    Sketcher.Constraint("Symmetric", 0, 3, 1, 3, -2),
    Sketcher.Constraint("Diameter", 0, Q("9.25 mm")),
    Sketcher.Constraint("DistanceY", -1, 1, 0, 3, Q("13 mm")),
    Sketcher.Constraint("DistanceX", 0, 3, 1, 3, Q("79 mm")),
])
sketch13.setExpression("Constraints[2]", "Params.sketch13_diameter")
pocket3 = doc.addObject("PartDesign::Pocket", "Pocket002")
body.addObject(pocket3)
pocket3.Profile = sketch13
pocket3.setExpression("Length", "Params.pocket3_length")
pocket3.Reversed = True

doc.recompute()
